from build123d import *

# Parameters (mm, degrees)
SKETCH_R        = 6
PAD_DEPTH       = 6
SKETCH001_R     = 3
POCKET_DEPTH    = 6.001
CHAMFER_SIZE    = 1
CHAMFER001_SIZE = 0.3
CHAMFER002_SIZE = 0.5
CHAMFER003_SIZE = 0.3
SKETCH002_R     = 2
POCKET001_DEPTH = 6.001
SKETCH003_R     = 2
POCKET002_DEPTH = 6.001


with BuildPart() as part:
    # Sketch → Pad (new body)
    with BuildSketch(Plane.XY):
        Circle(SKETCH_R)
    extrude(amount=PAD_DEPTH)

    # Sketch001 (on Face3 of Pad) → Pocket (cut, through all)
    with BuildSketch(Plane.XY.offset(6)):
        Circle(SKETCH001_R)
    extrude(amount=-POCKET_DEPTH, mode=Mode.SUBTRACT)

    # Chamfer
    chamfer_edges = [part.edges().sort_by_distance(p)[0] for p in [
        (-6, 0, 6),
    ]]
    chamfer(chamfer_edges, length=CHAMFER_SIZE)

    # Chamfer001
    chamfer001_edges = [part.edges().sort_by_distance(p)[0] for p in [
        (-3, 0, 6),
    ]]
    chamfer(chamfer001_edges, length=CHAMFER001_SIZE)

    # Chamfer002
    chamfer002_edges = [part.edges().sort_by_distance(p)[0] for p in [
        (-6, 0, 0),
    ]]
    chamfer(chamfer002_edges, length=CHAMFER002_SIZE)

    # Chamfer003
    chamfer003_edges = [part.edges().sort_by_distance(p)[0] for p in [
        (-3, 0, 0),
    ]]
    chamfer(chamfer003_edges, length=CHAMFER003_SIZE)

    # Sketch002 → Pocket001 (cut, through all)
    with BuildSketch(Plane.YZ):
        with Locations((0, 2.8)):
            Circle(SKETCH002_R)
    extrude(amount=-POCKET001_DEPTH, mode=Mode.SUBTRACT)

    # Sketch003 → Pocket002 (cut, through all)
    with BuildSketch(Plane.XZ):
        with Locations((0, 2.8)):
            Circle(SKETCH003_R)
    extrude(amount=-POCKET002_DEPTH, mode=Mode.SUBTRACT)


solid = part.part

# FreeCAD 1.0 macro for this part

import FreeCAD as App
import Part
import Sketcher
from FreeCAD import Vector


def edges_at(feature, points):
    """Names of the edges that pass closest to the given points."""
    edges = feature.Shape.Edges
    near = lambda p: min(range(len(edges)), key=lambda i: edges[i].distToShape(Part.Vertex(*p))[0])
    return sorted({f"Edge{near(p) + 1}" for p in points})

doc = App.newDocument("Part")
body = doc.addObject("PartDesign::Body", "Body")

sketch1 = body.newObject("Sketcher::SketchObject", "Sketch")
sketch1.AttachmentSupport = (doc.getObject("XY_Plane"), [""])
sketch1.MapMode = "FlatFace"
sketch1.addGeometry(Part.Circle(Vector(0, 0, 0), Vector(0, 0, 1), 6), False)
sketch1.addConstraint(Sketcher.Constraint("Coincident", 0, 3, -1, 1))
sketch1.addConstraint(Sketcher.Constraint("Diameter", 0, 12.0))
pad1 = body.newObject("PartDesign::Pad", "Pad")
pad1.Profile = sketch1
pad1.Length = 6

sketch2 = body.newObject("Sketcher::SketchObject", "Sketch001")
sketch2.AttachmentSupport = (doc.getObject("XY_Plane"), [""])
sketch2.MapMode = "FlatFace"
sketch2.AttachmentOffset = App.Placement(Vector(0, 0, 6), App.Rotation())
sketch2.addGeometry(Part.Circle(Vector(0, 0, 0), Vector(0, 0, 1), 3), False)
sketch2.addConstraint(Sketcher.Constraint("Coincident", 0, 3, -1, 1))
sketch2.addConstraint(Sketcher.Constraint("Diameter", 0, 6.0))
pocket1 = body.newObject("PartDesign::Pocket", "Pocket")
pocket1.Profile = sketch2
pocket1.Type = "ThroughAll"
doc.recompute()

chamfer = body.newObject("PartDesign::Chamfer", "Chamfer")
chamfer.Base = (pocket1, edges_at(pocket1, [(-6, 0, 6)]))
chamfer.Size = 1
doc.recompute()

chamfer2 = body.newObject("PartDesign::Chamfer", "Chamfer001")
chamfer2.Base = (chamfer, edges_at(chamfer, [(-3, 0, 6)]))
chamfer2.Size = 0.3
doc.recompute()

chamfer3 = body.newObject("PartDesign::Chamfer", "Chamfer002")
chamfer3.Base = (chamfer2, edges_at(chamfer2, [(-6, 0, 0)]))
chamfer3.Size = 0.5
doc.recompute()

chamfer4 = body.newObject("PartDesign::Chamfer", "Chamfer003")
chamfer4.Base = (chamfer3, edges_at(chamfer3, [(-3, 0, 0)]))
chamfer4.Size = 0.3

sketch3 = body.newObject("Sketcher::SketchObject", "Sketch002")
sketch3.AttachmentSupport = (doc.getObject("YZ_Plane"), [""])
sketch3.MapMode = "FlatFace"
sketch3.addGeometry(Part.Circle(Vector(0, 2.8, 0), Vector(0, 0, 1), 2), False)
sketch3.addConstraint(Sketcher.Constraint("PointOnObject", 0, 3, -2))
sketch3.addConstraint(Sketcher.Constraint("Diameter", 0, 4.0))
sketch3.addConstraint(Sketcher.Constraint("DistanceY", -1, 1, 0, 3, 2.8))
pocket2 = body.newObject("PartDesign::Pocket", "Pocket001")
pocket2.Profile = sketch3
pocket2.Type = "ThroughAll"

sketch4 = body.newObject("Sketcher::SketchObject", "Sketch003")
sketch4.AttachmentSupport = (doc.getObject("XZ_Plane"), [""])
sketch4.MapMode = "FlatFace"
sketch4.addGeometry(Part.Circle(Vector(0, 2.8, 0), Vector(0, 0, 1), 2), False)
sketch4.addConstraint(Sketcher.Constraint("PointOnObject", 0, 3, -2))
sketch4.addConstraint(Sketcher.Constraint("Diameter", 0, 4.0))
sketch4.addConstraint(Sketcher.Constraint("DistanceY", -1, 1, 0, 3, 2.8))
pocket3 = body.newObject("PartDesign::Pocket", "Pocket002")
pocket3.Profile = sketch4
pocket3.Type = "ThroughAll"

doc.recompute()
